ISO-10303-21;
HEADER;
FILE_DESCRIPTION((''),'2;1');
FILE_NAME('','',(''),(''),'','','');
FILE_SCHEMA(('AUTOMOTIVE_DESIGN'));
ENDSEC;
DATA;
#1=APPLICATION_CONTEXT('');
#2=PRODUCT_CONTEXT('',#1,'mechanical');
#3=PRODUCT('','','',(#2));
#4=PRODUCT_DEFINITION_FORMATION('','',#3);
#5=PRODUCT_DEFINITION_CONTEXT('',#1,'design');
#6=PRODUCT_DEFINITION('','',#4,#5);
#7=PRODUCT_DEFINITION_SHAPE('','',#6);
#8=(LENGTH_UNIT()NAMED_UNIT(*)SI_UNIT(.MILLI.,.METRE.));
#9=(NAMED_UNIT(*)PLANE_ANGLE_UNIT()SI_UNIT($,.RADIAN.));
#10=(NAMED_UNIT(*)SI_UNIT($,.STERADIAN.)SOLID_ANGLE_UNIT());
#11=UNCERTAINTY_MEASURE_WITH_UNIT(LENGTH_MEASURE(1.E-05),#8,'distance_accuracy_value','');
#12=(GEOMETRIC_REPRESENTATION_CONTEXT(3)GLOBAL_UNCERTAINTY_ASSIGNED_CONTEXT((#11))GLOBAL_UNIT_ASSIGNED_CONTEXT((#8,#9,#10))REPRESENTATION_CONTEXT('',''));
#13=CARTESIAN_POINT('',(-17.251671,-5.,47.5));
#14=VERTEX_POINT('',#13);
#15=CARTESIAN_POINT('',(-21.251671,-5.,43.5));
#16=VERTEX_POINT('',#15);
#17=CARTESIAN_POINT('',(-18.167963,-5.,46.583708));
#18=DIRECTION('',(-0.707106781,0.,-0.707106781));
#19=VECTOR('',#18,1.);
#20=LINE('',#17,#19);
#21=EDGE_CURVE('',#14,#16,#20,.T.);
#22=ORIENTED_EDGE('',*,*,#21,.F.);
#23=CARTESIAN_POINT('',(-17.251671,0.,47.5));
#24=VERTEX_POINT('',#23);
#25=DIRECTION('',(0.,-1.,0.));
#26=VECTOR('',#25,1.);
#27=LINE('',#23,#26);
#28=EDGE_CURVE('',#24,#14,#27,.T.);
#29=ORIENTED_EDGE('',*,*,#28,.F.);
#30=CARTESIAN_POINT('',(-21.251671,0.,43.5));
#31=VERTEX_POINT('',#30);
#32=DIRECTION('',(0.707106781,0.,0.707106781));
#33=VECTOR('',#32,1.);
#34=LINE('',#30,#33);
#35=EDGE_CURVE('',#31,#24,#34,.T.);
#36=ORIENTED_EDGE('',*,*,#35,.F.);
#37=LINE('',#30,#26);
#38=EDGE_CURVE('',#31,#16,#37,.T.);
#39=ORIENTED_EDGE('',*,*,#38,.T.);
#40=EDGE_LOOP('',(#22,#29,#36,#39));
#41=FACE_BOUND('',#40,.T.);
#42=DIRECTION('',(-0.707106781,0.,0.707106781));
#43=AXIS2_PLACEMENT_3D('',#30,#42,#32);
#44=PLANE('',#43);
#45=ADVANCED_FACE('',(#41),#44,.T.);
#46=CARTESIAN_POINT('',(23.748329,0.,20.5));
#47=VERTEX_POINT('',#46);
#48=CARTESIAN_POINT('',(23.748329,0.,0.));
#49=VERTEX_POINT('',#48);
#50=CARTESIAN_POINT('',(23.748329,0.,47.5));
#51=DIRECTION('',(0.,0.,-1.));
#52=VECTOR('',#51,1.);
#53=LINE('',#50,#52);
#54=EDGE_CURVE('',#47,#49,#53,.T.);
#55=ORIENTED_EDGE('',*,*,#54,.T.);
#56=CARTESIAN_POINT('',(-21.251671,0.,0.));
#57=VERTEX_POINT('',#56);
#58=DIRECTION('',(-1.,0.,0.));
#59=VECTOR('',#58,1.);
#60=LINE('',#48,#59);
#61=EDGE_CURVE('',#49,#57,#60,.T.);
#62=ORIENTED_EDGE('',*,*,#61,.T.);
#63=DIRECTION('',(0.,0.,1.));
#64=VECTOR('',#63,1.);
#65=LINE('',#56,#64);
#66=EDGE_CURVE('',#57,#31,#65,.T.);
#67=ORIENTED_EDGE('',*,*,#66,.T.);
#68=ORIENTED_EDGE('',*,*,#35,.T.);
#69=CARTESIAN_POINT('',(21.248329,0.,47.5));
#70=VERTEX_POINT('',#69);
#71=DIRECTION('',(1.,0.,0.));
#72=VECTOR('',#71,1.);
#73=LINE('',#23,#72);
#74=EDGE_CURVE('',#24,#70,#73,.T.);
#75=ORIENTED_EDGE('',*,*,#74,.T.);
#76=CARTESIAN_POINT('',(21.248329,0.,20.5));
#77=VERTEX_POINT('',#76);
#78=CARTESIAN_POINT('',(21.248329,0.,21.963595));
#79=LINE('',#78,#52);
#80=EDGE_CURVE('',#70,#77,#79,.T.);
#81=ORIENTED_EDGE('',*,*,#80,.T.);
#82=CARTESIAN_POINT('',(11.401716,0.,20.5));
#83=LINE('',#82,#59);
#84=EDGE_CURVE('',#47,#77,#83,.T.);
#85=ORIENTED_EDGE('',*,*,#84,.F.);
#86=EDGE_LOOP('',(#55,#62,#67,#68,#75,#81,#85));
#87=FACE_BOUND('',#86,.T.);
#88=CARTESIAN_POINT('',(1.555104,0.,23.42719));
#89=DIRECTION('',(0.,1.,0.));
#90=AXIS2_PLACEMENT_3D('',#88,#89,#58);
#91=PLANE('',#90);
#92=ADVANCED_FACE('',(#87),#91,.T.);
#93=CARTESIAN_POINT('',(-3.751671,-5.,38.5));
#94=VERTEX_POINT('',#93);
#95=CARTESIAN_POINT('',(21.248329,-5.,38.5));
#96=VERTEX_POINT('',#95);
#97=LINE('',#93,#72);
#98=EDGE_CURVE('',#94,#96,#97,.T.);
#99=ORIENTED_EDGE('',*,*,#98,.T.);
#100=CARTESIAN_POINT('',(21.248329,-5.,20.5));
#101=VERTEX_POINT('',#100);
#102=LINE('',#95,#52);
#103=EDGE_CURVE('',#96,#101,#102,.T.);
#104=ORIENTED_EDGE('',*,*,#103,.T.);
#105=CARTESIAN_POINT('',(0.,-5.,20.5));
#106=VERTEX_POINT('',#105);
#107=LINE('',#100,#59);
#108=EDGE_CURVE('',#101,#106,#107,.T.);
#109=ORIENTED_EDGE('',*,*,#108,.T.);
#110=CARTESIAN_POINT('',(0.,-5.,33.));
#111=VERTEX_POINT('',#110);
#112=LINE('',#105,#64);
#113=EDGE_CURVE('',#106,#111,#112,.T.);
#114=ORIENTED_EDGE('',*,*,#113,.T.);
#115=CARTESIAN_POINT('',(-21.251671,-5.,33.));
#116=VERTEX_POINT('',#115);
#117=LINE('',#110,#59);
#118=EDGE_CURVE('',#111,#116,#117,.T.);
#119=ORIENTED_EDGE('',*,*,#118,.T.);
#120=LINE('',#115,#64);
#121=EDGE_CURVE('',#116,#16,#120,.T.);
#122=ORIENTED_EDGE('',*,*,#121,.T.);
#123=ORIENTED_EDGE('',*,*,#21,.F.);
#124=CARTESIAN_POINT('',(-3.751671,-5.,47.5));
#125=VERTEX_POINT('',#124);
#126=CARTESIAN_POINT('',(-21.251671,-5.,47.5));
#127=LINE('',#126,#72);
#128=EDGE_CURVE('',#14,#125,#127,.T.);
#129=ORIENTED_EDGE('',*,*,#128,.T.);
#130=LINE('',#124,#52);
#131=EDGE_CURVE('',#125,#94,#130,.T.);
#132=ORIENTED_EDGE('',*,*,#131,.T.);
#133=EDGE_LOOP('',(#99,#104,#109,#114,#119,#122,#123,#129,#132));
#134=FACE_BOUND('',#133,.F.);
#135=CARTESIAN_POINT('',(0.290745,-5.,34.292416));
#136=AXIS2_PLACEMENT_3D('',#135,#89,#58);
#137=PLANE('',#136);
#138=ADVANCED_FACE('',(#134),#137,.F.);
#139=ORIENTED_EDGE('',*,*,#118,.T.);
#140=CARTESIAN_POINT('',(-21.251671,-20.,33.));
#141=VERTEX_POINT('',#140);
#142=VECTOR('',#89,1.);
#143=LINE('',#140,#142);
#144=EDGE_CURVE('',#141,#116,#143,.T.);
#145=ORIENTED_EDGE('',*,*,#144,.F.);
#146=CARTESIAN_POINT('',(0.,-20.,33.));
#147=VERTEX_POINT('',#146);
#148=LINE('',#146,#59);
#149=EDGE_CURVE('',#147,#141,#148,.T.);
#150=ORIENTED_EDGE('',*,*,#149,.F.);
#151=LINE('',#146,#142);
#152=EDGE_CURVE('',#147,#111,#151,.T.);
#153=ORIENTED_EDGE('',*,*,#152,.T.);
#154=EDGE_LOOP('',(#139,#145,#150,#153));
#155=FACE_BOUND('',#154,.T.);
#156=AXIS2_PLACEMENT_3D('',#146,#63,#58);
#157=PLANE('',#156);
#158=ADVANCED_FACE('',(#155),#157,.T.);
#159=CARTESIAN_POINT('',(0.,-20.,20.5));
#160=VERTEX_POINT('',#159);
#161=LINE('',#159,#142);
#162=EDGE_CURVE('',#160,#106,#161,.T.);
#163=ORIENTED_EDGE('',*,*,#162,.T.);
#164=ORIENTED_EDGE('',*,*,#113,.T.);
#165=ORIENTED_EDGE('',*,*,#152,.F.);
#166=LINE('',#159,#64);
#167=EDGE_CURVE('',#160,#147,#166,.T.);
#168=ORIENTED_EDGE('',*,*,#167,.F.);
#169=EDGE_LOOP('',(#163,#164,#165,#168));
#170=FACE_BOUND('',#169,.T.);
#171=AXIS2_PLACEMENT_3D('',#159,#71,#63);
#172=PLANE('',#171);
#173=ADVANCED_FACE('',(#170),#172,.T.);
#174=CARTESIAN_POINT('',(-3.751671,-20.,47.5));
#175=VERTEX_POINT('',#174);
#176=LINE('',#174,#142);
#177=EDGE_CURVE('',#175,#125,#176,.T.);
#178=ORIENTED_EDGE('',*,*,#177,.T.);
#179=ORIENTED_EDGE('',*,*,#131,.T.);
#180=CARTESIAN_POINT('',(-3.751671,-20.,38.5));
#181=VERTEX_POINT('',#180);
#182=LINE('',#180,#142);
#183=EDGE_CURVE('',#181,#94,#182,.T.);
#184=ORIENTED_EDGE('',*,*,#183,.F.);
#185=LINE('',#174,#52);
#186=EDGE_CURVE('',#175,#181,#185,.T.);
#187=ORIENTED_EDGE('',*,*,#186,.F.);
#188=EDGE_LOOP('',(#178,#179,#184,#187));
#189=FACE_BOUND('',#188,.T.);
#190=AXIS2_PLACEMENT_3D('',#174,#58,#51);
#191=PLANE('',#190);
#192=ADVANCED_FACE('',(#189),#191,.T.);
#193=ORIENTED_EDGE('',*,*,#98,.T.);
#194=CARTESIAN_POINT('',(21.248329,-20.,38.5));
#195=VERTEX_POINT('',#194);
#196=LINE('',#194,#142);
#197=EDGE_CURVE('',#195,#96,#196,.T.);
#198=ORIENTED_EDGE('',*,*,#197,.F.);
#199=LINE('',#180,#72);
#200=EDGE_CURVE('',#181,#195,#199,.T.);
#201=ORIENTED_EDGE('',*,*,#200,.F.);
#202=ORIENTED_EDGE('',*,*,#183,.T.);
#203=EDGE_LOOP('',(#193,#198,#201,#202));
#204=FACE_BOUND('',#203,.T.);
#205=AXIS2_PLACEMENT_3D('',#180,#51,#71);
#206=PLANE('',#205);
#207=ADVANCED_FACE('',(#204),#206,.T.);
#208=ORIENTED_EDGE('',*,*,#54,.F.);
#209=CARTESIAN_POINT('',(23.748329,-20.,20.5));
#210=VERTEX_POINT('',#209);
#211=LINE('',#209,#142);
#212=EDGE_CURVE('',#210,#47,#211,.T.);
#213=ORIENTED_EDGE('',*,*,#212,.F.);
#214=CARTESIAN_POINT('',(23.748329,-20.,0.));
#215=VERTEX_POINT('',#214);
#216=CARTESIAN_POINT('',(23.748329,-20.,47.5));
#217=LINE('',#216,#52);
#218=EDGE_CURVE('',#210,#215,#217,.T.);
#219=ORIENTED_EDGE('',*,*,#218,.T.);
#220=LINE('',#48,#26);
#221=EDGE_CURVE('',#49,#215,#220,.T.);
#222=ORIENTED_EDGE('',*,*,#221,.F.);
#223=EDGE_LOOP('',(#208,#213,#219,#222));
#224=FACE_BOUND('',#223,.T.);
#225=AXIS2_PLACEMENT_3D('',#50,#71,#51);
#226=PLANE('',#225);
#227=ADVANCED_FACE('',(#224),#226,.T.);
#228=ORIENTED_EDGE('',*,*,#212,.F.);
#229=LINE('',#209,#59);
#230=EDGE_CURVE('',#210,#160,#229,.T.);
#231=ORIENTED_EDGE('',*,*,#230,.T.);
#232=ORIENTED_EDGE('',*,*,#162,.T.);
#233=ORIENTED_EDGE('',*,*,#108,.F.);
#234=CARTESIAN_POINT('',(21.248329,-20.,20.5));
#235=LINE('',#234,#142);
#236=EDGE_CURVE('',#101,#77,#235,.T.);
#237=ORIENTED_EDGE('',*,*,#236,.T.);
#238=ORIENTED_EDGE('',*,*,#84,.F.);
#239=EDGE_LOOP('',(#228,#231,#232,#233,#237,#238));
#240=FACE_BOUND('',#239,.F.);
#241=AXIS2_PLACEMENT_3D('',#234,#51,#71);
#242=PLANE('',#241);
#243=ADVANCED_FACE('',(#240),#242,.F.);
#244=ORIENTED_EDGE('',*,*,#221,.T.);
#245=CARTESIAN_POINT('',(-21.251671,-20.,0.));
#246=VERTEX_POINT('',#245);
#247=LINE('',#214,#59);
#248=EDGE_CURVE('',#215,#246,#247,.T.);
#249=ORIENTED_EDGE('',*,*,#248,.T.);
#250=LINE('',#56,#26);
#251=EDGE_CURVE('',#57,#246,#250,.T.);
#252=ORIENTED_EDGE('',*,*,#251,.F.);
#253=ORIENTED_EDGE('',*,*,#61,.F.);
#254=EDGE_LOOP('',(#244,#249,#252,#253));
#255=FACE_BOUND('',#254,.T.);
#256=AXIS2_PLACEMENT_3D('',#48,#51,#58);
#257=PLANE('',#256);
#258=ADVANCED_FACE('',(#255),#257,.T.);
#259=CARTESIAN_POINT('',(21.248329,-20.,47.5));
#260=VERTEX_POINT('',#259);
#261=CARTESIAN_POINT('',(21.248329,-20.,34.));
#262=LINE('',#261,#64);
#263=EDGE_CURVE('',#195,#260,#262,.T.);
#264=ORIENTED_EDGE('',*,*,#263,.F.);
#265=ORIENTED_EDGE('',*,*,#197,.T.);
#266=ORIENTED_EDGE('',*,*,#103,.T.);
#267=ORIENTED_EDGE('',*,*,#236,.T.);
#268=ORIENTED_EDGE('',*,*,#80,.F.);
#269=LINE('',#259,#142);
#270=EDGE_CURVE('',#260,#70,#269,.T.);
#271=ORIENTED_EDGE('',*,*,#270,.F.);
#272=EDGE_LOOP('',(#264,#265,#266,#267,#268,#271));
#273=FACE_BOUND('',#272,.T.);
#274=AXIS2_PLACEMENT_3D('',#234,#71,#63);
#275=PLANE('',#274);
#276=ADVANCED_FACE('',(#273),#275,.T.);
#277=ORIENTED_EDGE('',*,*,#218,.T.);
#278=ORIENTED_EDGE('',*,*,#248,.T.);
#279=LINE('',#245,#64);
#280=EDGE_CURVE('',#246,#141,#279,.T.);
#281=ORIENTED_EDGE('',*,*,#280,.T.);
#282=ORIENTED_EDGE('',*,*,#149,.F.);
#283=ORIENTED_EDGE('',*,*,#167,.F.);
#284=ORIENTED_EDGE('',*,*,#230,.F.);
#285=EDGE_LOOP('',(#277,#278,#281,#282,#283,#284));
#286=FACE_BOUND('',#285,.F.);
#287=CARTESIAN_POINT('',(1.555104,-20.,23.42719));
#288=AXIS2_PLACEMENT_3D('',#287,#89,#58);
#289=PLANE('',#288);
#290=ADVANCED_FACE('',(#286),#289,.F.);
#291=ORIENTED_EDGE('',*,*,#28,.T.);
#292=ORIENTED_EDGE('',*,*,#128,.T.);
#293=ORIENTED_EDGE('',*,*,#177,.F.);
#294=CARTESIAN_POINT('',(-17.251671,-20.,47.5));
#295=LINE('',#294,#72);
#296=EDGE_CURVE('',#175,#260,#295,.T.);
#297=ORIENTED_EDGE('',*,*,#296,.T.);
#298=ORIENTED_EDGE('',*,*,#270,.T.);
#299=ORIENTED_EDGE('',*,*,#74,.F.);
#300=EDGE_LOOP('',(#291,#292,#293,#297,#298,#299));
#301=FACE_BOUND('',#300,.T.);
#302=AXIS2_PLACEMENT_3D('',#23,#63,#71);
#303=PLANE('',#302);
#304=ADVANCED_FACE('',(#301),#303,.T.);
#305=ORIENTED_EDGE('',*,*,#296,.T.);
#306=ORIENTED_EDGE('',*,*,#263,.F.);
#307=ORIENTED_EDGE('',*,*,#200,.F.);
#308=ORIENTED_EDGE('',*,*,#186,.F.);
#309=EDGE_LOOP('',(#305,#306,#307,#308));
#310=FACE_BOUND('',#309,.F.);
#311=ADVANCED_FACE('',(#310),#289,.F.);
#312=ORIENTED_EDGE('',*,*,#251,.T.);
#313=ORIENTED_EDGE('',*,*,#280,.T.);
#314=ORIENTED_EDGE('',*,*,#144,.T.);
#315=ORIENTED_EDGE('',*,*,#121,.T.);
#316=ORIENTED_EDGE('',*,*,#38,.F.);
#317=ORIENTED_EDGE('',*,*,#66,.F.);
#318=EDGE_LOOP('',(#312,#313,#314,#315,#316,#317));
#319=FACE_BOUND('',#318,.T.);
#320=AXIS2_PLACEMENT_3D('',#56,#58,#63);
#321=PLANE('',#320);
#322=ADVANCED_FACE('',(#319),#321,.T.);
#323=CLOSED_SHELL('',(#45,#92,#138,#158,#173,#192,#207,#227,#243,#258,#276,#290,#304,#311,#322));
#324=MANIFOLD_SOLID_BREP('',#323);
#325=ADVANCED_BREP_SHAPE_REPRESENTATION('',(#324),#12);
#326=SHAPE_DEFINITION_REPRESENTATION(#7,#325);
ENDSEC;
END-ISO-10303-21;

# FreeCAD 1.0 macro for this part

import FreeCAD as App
import Part
import Sketcher

V = App.Vector
Q = App.Units.Quantity

doc = App.newDocument("Part")
body = doc.addObject("PartDesign::Body", "Body")

sketch1 = body.newObject("Sketcher::SketchObject", "Sketch")
sketch1.AttachmentSupport = (doc.getObject("XZ_Plane"), [""])
sketch1.MapMode = "FlatFace"
sketch1.addGeometry(Part.LineSegment(V(-21, 0, 0), V(24, 0, 0)), False)
sketch1.addGeometry(Part.LineSegment(V(24, 0, 0), V(24, 48, 0)), False)
sketch1.addGeometry(Part.LineSegment(V(24, 48, 0), V(-17, 48, 0)), False)
sketch1.addGeometry(Part.LineSegment(V(-17, 48, 0), V(-21, 44, 0)), False)
sketch1.addGeometry(Part.LineSegment(V(-21, 44, 0), V(-21, 0, 0)), False)
sketch1.addConstraint(Sketcher.Constraint("Coincident", 0, 2, 1, 1))
sketch1.addConstraint(Sketcher.Constraint("Coincident", 1, 2, 2, 1))
sketch1.addConstraint(Sketcher.Constraint("Coincident", 2, 2, 3, 1))
sketch1.addConstraint(Sketcher.Constraint("Coincident", 3, 2, 4, 1))
sketch1.addConstraint(Sketcher.Constraint("Coincident", 4, 2, 0, 1))
sketch1.addConstraint(Sketcher.Constraint("Horizontal", 0))
sketch1.addConstraint(Sketcher.Constraint("Vertical", 1))
sketch1.addConstraint(Sketcher.Constraint("Horizontal", 2))
sketch1.addConstraint(Sketcher.Constraint("Vertical", 4))
sketch1.addConstraint(Sketcher.Constraint("PointOnObject", 0, 2, -1))
sketch1.addConstraint(Sketcher.Constraint("DistanceX", 0, 1, 0, 2, Q("45 mm")))
sketch1.addConstraint(Sketcher.Constraint("DistanceX", 2, 2, 2, 1, Q("41 mm")))
sketch1.addConstraint(Sketcher.Constraint("Angle", 3, Q("-135 deg")))
sketch1.addConstraint(Sketcher.Constraint("DistanceY", 1, 1, 1, 2, Q("47.5 mm")))
sketch1.addConstraint(Sketcher.Constraint("DistanceX", -1, 1, 0, 2, Q("23.748329 mm")))
pad1 = body.newObject("PartDesign::Pad", "Pad")
pad1.Profile = sketch1
pad1.Length = 20

sketch2 = body.newObject("Sketcher::SketchObject", "Sketch001")
sketch2.AttachmentSupport = (doc.getObject("XZ_Plane"), [""])
sketch2.MapMode = "FlatFace"
sketch2.AttachmentOffset = App.Placement(V(0, 0, 20), App.Rotation())
sketch2.addGeometry(Part.LineSegment(V(21.2, 47.5, 0), V(21.2, 20.5, 0)), False)
sketch2.addGeometry(Part.LineSegment(V(21.2, 20.5, 0), V(23.7, 20.5, 0)), False)
sketch2.addGeometry(Part.LineSegment(V(23.7, 20.5, 0), V(23.7, 47.5, 0)), False)
sketch2.addGeometry(Part.LineSegment(V(23.7, 47.5, 0), V(21.2, 47.5, 0)), False)
sketch2.addConstraint(Sketcher.Constraint("Coincident", 0, 2, 1, 1))
sketch2.addConstraint(Sketcher.Constraint("Coincident", 1, 2, 2, 1))
sketch2.addConstraint(Sketcher.Constraint("Coincident", 2, 2, 3, 1))
sketch2.addConstraint(Sketcher.Constraint("Coincident", 3, 2, 0, 1))
sketch2.addConstraint(Sketcher.Constraint("Vertical", 0))
sketch2.addConstraint(Sketcher.Constraint("Horizontal", 1))
sketch2.addConstraint(Sketcher.Constraint("Vertical", 2))
sketch2.addConstraint(Sketcher.Constraint("Horizontal", 3))
sketch2.addConstraint(Sketcher.Constraint("DistanceY", 0, 2, 0, 1, Q("27 mm")))
sketch2.addConstraint(Sketcher.Constraint("DistanceX", 1, 1, 1, 2, Q("2.5 mm")))
sketch2.addConstraint(Sketcher.Constraint("DistanceY", -1, 1, 0, 2, Q("20.5 mm")))
sketch2.addConstraint(Sketcher.Constraint("DistanceX", -1, 1, 0, 2, Q("21.248329 mm")))
pocket1 = body.newObject("PartDesign::Pocket", "Pocket")
pocket1.Profile = sketch2
pocket1.Type = "ThroughAll"

sketch3 = body.newObject("Sketcher::SketchObject", "Sketch002")
sketch3.AttachmentSupport = (doc.getObject("XZ_Plane"), [""])
sketch3.MapMode = "FlatFace"
sketch3.AttachmentOffset = App.Placement(V(0, 0, 20), App.Rotation())
sketch3.addGeometry(Part.LineSegment(V(0, 20, 0), V(21, 20, 0)), False)
sketch3.addGeometry(Part.LineSegment(V(21, 20, 0), V(21, 38, 0)), False)
sketch3.addGeometry(Part.LineSegment(V(21, 38, 0), V(-4, 38, 0)), False)
sketch3.addGeometry(Part.LineSegment(V(-4, 38, 0), V(-4, 48, 0)), False)
sketch3.addGeometry(Part.LineSegment(V(-4, 48, 0), V(-21, 48, 0)), False)
sketch3.addGeometry(Part.LineSegment(V(-21, 48, 0), V(-21, 33, 0)), False)
sketch3.addGeometry(Part.LineSegment(V(-21, 33, 0), V(0, 33, 0)), False)
sketch3.addGeometry(Part.LineSegment(V(0, 33, 0), V(0, 20, 0)), False)
sketch3.addConstraint(Sketcher.Constraint("Coincident", 0, 2, 1, 1))
sketch3.addConstraint(Sketcher.Constraint("Coincident", 1, 2, 2, 1))
sketch3.addConstraint(Sketcher.Constraint("Coincident", 2, 2, 3, 1))
sketch3.addConstraint(Sketcher.Constraint("Coincident", 3, 2, 4, 1))
sketch3.addConstraint(Sketcher.Constraint("Coincident", 4, 2, 5, 1))
sketch3.addConstraint(Sketcher.Constraint("Coincident", 5, 2, 6, 1))
sketch3.addConstraint(Sketcher.Constraint("Coincident", 6, 2, 7, 1))
sketch3.addConstraint(Sketcher.Constraint("Coincident", 7, 2, 0, 1))
sketch3.addConstraint(Sketcher.Constraint("Horizontal", 0))
sketch3.addConstraint(Sketcher.Constraint("Vertical", 1))
sketch3.addConstraint(Sketcher.Constraint("Horizontal", 2))
sketch3.addConstraint(Sketcher.Constraint("Vertical", 3))
sketch3.addConstraint(Sketcher.Constraint("Horizontal", 4))
sketch3.addConstraint(Sketcher.Constraint("Vertical", 5))
sketch3.addConstraint(Sketcher.Constraint("Horizontal", 6))
sketch3.addConstraint(Sketcher.Constraint("Vertical", 7))
sketch3.addConstraint(Sketcher.Constraint("PointOnObject", 6, 2, -2))
sketch3.addConstraint(Sketcher.Constraint("DistanceX", 2, 2, 2, 1, Q("25 mm")))
sketch3.addConstraint(Sketcher.Constraint("DistanceY", 1, 1, 1, 2, Q("18 mm")))
sketch3.addConstraint(Sketcher.Constraint("DistanceY", 3, 1, 3, 2, Q("9 mm")))
sketch3.addConstraint(Sketcher.Constraint("DistanceX", 4, 2, 4, 1, Q("17.5 mm")))
sketch3.addConstraint(Sketcher.Constraint("DistanceY", 5, 2, 5, 1, Q("14.5 mm")))
sketch3.addConstraint(Sketcher.Constraint("DistanceY", -1, 1, 5, 2, Q("33 mm")))
sketch3.addConstraint(Sketcher.Constraint("DistanceX", 0, 1, 0, 2, Q("21.248329 mm")))
pocket2 = body.newObject("PartDesign::Pocket", "Pocket001")
pocket2.Profile = sketch3
pocket2.Length = 15

doc.recompute()
